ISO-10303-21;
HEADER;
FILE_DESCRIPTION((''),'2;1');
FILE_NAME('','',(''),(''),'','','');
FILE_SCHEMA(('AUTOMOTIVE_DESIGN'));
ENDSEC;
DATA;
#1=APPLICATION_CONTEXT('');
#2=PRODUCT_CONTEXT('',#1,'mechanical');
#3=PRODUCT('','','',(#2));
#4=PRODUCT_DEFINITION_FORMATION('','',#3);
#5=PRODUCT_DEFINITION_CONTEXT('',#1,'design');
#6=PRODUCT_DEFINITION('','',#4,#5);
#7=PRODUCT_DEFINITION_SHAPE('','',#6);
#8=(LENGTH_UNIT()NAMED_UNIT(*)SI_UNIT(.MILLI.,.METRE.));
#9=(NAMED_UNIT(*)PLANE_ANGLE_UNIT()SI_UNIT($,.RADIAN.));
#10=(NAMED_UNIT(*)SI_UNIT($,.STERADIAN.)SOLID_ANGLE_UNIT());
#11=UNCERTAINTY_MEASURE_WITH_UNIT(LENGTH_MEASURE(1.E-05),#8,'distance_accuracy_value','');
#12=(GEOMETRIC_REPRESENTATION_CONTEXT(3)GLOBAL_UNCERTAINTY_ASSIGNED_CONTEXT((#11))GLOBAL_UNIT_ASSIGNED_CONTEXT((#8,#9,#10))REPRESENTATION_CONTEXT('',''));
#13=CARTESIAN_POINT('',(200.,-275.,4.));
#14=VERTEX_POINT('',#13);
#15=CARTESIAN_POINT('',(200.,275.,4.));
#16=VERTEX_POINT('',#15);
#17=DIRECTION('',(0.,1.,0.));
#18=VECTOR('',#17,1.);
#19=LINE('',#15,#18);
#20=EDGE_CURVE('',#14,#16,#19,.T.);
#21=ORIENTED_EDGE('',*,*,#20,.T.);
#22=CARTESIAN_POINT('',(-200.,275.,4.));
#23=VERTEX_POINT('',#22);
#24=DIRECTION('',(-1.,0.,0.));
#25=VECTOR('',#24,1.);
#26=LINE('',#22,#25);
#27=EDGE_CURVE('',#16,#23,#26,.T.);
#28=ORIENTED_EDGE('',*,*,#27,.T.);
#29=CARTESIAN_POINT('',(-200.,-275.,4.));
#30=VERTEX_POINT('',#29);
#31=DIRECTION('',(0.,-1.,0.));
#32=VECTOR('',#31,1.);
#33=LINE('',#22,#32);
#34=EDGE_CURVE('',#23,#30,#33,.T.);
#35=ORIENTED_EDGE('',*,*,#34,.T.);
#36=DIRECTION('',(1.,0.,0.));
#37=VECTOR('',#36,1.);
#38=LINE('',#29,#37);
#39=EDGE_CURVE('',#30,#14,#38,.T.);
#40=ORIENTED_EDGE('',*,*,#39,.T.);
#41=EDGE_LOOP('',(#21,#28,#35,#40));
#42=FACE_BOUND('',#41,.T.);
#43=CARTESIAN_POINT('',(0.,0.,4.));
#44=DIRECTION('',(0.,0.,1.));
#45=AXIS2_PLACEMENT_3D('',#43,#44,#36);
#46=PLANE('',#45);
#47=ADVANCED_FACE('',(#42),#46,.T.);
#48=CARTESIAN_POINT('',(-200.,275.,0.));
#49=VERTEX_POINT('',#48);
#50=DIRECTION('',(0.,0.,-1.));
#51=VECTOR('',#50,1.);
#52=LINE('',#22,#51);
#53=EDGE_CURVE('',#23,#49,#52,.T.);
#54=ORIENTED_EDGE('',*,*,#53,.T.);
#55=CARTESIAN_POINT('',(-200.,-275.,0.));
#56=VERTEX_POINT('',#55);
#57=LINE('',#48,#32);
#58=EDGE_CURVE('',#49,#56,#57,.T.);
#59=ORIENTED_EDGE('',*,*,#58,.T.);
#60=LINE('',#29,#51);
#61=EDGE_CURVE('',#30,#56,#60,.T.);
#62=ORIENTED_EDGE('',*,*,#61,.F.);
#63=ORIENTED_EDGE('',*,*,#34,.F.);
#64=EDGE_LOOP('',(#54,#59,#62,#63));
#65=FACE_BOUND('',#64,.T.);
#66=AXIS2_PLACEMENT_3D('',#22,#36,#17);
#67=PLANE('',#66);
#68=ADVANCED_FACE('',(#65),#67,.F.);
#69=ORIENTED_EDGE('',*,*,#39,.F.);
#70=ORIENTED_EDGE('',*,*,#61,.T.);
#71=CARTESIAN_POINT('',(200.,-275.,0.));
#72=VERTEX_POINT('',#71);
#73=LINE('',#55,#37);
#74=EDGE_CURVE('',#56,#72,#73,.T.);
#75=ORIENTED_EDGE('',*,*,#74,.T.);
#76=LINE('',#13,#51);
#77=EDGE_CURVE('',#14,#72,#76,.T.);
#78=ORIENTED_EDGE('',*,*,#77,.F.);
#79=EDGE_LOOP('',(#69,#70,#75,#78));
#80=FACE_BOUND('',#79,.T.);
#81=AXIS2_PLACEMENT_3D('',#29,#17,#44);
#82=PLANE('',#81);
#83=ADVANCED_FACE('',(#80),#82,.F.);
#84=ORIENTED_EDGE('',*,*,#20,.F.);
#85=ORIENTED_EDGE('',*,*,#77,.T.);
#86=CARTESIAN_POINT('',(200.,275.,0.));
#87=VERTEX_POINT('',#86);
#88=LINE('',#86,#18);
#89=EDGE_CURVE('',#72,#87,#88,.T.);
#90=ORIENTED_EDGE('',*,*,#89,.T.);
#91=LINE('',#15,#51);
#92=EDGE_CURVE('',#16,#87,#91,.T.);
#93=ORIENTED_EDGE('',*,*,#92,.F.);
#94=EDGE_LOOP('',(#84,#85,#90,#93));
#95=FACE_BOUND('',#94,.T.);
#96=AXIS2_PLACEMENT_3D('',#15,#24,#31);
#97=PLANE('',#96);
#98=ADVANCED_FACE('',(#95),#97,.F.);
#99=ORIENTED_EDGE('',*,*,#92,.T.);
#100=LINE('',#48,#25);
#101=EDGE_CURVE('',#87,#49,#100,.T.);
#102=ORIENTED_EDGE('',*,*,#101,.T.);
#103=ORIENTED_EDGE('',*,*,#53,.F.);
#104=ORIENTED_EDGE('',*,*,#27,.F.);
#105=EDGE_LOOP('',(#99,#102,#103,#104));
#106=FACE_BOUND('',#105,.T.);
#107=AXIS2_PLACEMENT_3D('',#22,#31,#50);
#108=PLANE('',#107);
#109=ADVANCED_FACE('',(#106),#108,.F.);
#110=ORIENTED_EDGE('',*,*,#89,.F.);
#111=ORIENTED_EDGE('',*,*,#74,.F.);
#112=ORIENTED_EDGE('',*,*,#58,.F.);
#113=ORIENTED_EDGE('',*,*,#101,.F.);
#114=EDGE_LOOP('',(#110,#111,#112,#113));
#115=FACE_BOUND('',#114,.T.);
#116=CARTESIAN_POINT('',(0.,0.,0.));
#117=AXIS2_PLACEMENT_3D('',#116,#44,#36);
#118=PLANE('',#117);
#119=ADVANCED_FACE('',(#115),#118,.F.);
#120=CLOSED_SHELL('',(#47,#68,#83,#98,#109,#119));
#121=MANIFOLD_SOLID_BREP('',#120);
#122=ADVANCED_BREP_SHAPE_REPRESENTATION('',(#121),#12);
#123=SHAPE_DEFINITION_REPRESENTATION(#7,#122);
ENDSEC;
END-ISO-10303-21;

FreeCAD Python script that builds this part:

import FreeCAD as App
import Part
import Sketcher

V = App.Vector


def add_polygon(sketch, points):
    """Adds a closed chain of lines whose ends are joined by coincident constraints."""
    first, n = sketch.GeometryCount, len(points)
    for a, b in zip(points, points[1:] + points[:1]):
        sketch.addGeometry(Part.LineSegment(App.Vector(*a, 0), App.Vector(*b, 0)), False)
    for i in range(n):
        sketch.addConstraint(Sketcher.Constraint("Coincident", first + i, 2, first + (i + 1) % n, 1))

doc = App.newDocument("Part")
body = doc.addObject("PartDesign::Body", "Body")

sketch1 = body.newObject("Sketcher::SketchObject", "Sketch")
sketch1.AttachmentSupport = (doc.getObject("XY_Plane"), [""])
sketch1.MapMode = "FlatFace"
add_polygon(sketch1, [(-200, 275), (-200, -275), (200, -275), (200, 275)])
sketch1.addConstraint([
    Sketcher.Constraint("Vertical", 0),
    Sketcher.Constraint("Horizontal", 1),
    Sketcher.Constraint("Vertical", 2),
    Sketcher.Constraint("Horizontal", 3),
    Sketcher.Constraint("Symmetric", 0, 2, 2, 2, -1, 1),
    Sketcher.Constraint("DistanceX", 1, 1, 1, 2, 400.0),
    Sketcher.Constraint("DistanceY", 0, 2, 0, 1, 550.0),
])
pad1 = body.newObject("PartDesign::Pad", "Pad")
pad1.Profile = sketch1
pad1.Length = 4

doc.recompute()
